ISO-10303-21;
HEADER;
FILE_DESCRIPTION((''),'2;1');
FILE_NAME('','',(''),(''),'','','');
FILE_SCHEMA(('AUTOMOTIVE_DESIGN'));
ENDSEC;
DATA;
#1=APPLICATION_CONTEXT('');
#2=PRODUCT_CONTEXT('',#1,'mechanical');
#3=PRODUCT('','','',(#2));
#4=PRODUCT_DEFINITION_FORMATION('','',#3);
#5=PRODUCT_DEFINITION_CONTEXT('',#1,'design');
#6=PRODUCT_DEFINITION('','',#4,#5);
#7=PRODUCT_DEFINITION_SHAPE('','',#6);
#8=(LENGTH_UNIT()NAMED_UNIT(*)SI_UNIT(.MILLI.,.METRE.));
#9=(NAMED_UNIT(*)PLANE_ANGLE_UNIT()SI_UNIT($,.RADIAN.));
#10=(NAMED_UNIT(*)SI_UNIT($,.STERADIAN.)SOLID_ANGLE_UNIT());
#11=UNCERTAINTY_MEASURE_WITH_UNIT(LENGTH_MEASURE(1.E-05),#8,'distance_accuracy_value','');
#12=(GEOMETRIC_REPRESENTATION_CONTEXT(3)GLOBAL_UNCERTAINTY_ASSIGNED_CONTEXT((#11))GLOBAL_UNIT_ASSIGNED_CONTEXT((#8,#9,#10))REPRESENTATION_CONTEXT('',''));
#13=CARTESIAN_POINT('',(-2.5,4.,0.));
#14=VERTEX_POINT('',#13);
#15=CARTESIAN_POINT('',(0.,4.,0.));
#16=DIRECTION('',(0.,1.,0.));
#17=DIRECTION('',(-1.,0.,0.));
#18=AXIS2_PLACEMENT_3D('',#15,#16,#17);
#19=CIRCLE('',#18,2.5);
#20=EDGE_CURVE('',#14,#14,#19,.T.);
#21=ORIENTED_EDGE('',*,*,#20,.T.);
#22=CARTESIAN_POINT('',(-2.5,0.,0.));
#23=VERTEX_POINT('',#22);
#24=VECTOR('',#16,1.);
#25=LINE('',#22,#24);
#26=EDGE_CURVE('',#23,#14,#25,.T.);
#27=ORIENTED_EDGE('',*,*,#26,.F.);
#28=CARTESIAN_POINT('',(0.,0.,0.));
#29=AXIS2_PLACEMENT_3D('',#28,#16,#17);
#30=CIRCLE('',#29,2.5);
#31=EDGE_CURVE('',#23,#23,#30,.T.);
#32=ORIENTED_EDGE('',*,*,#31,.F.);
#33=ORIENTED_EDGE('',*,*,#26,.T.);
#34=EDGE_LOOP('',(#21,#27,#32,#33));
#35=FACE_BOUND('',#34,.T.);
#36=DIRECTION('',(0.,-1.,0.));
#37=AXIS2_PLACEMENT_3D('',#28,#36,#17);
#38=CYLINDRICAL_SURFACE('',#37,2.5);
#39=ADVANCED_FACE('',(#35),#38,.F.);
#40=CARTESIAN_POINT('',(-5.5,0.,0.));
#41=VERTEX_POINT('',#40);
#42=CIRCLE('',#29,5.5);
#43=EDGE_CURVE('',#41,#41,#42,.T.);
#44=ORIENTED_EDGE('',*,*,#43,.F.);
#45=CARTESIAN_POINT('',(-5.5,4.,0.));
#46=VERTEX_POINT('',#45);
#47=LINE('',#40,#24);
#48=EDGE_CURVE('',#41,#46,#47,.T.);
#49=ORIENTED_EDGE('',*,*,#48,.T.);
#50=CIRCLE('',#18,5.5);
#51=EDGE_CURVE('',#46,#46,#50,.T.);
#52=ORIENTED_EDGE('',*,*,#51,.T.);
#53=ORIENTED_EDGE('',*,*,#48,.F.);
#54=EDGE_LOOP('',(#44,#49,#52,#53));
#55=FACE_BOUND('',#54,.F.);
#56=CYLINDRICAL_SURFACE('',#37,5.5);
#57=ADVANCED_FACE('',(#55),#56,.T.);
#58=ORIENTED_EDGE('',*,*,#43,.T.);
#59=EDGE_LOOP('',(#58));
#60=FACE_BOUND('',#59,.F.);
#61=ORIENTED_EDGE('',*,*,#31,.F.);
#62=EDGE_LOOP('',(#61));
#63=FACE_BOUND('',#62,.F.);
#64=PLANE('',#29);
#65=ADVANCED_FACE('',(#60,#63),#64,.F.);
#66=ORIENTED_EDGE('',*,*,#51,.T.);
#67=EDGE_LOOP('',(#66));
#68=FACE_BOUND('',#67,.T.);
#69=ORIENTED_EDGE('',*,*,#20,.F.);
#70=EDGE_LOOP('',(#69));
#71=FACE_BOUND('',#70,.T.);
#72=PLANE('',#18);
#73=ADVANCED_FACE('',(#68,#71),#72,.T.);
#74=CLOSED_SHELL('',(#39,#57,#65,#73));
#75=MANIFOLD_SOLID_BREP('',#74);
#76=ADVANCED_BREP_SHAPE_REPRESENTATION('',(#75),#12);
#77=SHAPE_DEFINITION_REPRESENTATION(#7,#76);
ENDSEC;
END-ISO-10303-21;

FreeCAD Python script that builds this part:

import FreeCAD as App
import Part
import Sketcher
from FreeCAD import Vector
Q = App.Units.Quantity

doc = App.newDocument("Part")
body = doc.addObject("PartDesign::Body", "Body")

sketch1 = doc.addObject("Sketcher::SketchObject", "Sketch")
body.addObject(sketch1)
sketch1.AttachmentSupport = (doc.XZ_Plane, [""])
sketch1.MapMode = "FlatFace"
sketch1.addGeometry([
    Part.Circle(Vector(0, 0, 0), Vector(0, 0, 1), 5.5),
    Part.Circle(Vector(0, 0, 0), Vector(0, 0, 1), 2.5),
], False)
sketch1.addConstraint([
    Sketcher.Constraint("Coincident", 0, 3, -1, 1),
    Sketcher.Constraint("Coincident", 1, 3, -1, 1),
    Sketcher.Constraint("Diameter", 0, Q("11 mm")),
    Sketcher.Constraint("Diameter", 1, Q("5 mm")),
])
pad1 = doc.addObject("PartDesign::Pad", "Pad")
body.addObject(pad1)
pad1.Profile = sketch1
pad1.Length = 4
pad1.Reversed = True

doc.recompute()
